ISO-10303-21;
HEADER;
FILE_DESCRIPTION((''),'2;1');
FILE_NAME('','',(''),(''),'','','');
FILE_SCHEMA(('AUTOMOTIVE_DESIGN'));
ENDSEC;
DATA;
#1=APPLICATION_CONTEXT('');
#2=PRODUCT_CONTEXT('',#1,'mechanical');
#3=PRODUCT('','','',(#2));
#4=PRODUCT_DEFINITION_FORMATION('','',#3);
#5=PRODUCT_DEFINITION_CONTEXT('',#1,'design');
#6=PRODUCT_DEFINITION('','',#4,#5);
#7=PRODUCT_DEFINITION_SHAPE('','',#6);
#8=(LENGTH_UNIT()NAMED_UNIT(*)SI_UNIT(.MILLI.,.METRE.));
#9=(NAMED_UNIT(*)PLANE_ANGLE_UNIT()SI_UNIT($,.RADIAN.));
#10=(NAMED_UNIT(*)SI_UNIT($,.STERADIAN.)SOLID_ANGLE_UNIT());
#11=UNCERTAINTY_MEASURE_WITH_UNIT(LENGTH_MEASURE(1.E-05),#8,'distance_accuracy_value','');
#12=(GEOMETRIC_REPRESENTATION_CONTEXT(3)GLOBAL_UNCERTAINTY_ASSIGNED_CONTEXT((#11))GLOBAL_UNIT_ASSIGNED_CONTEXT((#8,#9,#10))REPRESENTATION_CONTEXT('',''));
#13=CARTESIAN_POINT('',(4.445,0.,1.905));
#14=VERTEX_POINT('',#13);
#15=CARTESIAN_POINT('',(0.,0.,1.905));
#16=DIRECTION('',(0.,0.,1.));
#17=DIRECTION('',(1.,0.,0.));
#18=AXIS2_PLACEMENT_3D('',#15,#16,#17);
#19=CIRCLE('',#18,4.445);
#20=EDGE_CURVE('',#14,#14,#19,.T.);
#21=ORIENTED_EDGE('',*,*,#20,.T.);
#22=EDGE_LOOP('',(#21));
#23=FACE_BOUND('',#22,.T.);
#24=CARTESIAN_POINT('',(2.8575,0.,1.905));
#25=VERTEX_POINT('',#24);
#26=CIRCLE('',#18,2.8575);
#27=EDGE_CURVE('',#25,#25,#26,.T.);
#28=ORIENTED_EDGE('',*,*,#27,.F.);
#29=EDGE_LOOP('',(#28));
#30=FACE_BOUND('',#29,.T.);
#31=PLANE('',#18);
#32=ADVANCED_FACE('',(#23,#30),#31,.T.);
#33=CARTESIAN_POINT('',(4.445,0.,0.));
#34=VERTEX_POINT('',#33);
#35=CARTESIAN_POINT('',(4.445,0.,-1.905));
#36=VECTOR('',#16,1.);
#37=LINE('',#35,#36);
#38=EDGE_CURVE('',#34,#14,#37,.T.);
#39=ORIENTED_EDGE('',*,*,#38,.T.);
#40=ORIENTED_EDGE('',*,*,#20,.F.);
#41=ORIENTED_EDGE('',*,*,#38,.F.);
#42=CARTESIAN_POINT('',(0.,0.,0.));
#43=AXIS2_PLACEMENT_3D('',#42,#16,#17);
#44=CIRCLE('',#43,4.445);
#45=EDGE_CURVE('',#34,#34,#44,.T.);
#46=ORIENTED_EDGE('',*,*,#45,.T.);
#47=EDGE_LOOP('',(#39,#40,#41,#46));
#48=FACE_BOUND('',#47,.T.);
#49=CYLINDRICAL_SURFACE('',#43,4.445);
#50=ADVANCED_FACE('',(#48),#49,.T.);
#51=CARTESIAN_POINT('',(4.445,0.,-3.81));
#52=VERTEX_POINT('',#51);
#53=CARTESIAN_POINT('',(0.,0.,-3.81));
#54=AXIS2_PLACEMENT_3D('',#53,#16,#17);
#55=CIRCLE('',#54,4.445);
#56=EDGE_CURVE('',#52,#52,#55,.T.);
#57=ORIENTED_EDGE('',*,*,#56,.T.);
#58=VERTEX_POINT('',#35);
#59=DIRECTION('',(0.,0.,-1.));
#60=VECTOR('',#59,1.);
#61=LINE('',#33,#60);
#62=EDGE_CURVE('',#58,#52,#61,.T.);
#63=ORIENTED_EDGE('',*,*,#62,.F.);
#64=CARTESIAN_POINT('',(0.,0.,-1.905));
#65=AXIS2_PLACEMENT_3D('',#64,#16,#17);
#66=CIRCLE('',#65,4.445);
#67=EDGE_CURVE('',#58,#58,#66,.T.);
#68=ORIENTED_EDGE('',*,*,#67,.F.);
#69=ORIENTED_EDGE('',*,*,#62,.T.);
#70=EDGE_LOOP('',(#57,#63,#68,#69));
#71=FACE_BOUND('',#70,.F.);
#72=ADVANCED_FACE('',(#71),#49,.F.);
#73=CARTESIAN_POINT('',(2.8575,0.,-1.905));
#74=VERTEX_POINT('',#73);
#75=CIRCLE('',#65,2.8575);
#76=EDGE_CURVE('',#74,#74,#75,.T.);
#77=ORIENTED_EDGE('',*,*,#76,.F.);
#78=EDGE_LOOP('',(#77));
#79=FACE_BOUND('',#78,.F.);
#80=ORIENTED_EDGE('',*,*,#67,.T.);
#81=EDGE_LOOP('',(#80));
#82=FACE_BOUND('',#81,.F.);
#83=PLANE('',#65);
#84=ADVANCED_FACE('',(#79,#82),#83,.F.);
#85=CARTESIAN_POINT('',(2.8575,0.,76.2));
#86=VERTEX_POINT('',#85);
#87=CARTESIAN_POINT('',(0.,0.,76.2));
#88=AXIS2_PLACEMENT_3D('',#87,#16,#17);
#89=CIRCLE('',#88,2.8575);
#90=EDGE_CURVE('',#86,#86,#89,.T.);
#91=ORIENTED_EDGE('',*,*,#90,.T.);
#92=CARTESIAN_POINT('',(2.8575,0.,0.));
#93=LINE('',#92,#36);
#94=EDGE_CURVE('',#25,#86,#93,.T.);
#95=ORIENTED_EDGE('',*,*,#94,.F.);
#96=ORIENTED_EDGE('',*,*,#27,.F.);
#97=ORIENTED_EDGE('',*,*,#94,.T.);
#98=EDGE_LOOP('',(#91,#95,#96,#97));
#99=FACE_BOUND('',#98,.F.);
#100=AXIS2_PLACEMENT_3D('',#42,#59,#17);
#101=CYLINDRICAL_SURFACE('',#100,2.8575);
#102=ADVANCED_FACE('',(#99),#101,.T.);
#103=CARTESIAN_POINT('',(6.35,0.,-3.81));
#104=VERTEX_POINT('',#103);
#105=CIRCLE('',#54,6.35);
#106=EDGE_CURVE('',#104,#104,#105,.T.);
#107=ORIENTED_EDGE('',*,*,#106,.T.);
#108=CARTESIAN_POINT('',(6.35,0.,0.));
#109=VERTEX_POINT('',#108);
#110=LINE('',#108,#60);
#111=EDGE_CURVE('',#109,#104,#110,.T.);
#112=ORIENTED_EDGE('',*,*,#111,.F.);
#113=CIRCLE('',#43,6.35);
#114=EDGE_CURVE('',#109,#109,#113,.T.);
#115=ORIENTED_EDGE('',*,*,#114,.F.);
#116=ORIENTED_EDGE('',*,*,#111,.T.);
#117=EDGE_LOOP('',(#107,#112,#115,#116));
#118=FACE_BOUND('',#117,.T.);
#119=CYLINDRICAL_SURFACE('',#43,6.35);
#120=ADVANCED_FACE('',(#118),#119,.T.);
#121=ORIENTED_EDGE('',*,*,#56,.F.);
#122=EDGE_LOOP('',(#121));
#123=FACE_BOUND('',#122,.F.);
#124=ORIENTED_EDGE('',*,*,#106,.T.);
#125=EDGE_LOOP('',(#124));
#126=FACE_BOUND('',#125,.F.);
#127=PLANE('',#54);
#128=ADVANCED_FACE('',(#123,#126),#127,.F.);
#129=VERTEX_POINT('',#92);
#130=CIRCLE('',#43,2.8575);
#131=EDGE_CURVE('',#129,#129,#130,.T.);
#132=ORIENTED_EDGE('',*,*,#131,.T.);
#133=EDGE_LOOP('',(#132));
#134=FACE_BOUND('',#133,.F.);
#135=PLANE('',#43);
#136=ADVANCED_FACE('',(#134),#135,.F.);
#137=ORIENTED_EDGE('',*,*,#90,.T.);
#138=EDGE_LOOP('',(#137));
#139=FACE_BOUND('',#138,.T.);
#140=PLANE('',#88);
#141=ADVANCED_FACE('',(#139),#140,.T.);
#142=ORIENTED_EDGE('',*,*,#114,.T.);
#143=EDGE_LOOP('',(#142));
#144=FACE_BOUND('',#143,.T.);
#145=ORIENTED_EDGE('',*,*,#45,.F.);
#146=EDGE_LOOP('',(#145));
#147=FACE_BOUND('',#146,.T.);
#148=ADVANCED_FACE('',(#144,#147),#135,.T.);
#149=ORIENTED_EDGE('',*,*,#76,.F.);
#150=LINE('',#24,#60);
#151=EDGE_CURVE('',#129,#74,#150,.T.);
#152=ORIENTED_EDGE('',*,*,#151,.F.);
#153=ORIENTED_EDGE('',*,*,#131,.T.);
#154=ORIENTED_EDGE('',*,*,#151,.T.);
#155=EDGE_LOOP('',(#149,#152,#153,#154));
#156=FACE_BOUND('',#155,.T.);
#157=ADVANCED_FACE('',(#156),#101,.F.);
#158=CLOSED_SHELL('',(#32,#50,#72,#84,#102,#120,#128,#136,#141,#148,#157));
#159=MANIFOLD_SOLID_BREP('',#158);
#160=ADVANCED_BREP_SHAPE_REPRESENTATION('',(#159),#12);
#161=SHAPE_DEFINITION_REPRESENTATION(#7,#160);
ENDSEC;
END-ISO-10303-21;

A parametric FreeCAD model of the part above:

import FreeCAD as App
import Part
import Sketcher
Q = App.Units.Quantity

doc = App.newDocument("Part")
body = doc.addObject("PartDesign::Body", "Body")

sketch1 = body.newObject("Sketcher::SketchObject", "Sketch")
sketch1.AttachmentSupport = (doc.getObject("XY_Plane"), [""])
sketch1.MapMode = "FlatFace"
sketch1.addGeometry(Part.Circle(App.Vector(0, 0, 0), App.Vector(0, 0, 1), 2.9), False)
sketch1.addConstraint([
    Sketcher.Constraint("Coincident", 0, 3, -1, 1),
    Sketcher.Constraint("Diameter", 0, Q("0.225 in")),
])
pad1 = body.newObject("PartDesign::Pad", "Pad")
pad1.Profile = sketch1
pad1.Length = Q("3 in")

sketch2 = body.newObject("Sketcher::SketchObject", "Sketch001")
sketch2.AttachmentSupport = (doc.getObject("XY_Plane"), [""])
sketch2.MapMode = "FlatFace"
sketch2.addGeometry([
    Part.Circle(App.Vector(0, 0, 0), App.Vector(0, 0, 1), 4.4),
    Part.Circle(App.Vector(0, 0, 0), App.Vector(0, 0, 1), 2.9),
], False)
sketch2.addConstraint([
    Sketcher.Constraint("Coincident", 0, 3, -1, 1),
    Sketcher.Constraint("Coincident", 1, 3, -1, 1),
    Sketcher.Constraint("Diameter", 0, Q("0.35 in")),
    Sketcher.Constraint("Diameter", 1, Q("0.225 in")),
])
pad2 = body.newObject("PartDesign::Pad", "Pad001")
pad2.Profile = sketch2
pad2.Length = Q("0.15 in")
pad2.Midplane = True

sketch3 = body.newObject("Sketcher::SketchObject", "Sketch002")
sketch3.AttachmentSupport = (doc.getObject("XY_Plane"), [""])
sketch3.MapMode = "FlatFace"
sketch3.addGeometry([
    Part.Circle(App.Vector(0, 0, 0), App.Vector(0, 0, 1), 6.3),
    Part.Circle(App.Vector(0, 0, 0), App.Vector(0, 0, 1), 4.4),
], False)
sketch3.addConstraint([
    Sketcher.Constraint("Coincident", 0, 3, -1, 1),
    Sketcher.Constraint("Coincident", 1, 3, -1, 1),
    Sketcher.Constraint("Diameter", 0, Q("0.5 in")),
    Sketcher.Constraint("Diameter", 1, Q("0.35 in")),
])
pad3 = body.newObject("PartDesign::Pad", "Pad002")
pad3.Profile = sketch3
pad3.Length = Q("0.15 in")
pad3.Reversed = True

doc.recompute()
